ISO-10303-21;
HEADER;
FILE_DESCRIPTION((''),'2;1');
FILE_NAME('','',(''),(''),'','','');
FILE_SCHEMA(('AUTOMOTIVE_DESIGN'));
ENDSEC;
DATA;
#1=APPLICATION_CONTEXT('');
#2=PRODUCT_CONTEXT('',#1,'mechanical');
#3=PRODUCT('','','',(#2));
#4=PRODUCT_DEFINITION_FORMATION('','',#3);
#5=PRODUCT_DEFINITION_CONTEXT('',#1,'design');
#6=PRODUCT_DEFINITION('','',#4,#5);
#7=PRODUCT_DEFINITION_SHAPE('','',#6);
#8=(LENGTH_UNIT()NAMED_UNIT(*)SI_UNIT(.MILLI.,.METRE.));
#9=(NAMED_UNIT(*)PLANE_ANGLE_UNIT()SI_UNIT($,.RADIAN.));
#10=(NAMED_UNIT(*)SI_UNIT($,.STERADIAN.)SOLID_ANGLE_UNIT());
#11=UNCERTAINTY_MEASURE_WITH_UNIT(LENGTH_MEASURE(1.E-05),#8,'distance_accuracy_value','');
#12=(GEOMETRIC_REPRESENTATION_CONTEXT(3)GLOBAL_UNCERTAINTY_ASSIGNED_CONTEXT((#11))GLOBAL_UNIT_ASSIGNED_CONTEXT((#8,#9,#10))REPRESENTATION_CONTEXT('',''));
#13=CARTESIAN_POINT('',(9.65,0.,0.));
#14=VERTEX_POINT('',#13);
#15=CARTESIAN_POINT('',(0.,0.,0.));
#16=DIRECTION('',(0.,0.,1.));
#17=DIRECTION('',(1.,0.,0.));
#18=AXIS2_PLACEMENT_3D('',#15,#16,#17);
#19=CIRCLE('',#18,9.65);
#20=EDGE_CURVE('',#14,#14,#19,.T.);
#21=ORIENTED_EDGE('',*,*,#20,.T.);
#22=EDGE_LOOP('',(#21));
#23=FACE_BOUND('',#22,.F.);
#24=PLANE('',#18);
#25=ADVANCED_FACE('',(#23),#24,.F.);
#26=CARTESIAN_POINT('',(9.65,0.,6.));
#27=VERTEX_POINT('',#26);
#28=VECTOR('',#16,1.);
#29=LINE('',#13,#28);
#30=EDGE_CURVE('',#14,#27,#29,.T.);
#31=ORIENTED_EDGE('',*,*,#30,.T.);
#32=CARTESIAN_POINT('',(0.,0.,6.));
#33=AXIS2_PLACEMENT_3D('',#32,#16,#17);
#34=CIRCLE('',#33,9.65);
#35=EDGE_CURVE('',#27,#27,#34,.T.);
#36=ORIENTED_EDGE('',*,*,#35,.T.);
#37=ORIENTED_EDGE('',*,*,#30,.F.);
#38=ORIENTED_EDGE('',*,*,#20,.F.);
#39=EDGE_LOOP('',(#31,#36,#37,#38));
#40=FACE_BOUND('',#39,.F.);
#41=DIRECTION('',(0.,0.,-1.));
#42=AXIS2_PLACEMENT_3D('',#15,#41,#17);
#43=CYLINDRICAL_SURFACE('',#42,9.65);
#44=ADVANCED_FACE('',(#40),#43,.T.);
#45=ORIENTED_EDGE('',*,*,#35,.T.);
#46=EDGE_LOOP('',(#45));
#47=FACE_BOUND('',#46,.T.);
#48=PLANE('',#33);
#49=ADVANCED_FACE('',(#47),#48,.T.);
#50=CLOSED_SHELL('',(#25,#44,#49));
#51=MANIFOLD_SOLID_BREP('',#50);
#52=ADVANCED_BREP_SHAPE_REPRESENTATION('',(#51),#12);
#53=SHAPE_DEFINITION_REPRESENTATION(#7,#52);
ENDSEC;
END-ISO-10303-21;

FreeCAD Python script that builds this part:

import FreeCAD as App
import Part
import Sketcher
Q = App.Units.Quantity

doc = App.newDocument("Part")
body = doc.addObject("PartDesign::Body", "Body")

# Sketch on XY plane
sketch1 = doc.addObject("Sketcher::SketchObject", "Sketch")
body.addObject(sketch1)
sketch1.AttachmentSupport = (doc.XY_Plane, [""])
sketch1.MapMode = "FlatFace"
sketch1.addGeometry(Part.Circle(App.Vector(0, 0, 0), App.Vector(0, 0, 1), 10), False)
sketch1.addConstraint([
    Sketcher.Constraint("Coincident", 0, 3, -1, 1),
    Sketcher.Constraint("Diameter", 0, Q("19.3 mm")),
])
pad1 = doc.addObject("PartDesign::Pad", "Pad")
body.addObject(pad1)
pad1.Profile = sketch1
pad1.Length = 6

doc.recompute()
